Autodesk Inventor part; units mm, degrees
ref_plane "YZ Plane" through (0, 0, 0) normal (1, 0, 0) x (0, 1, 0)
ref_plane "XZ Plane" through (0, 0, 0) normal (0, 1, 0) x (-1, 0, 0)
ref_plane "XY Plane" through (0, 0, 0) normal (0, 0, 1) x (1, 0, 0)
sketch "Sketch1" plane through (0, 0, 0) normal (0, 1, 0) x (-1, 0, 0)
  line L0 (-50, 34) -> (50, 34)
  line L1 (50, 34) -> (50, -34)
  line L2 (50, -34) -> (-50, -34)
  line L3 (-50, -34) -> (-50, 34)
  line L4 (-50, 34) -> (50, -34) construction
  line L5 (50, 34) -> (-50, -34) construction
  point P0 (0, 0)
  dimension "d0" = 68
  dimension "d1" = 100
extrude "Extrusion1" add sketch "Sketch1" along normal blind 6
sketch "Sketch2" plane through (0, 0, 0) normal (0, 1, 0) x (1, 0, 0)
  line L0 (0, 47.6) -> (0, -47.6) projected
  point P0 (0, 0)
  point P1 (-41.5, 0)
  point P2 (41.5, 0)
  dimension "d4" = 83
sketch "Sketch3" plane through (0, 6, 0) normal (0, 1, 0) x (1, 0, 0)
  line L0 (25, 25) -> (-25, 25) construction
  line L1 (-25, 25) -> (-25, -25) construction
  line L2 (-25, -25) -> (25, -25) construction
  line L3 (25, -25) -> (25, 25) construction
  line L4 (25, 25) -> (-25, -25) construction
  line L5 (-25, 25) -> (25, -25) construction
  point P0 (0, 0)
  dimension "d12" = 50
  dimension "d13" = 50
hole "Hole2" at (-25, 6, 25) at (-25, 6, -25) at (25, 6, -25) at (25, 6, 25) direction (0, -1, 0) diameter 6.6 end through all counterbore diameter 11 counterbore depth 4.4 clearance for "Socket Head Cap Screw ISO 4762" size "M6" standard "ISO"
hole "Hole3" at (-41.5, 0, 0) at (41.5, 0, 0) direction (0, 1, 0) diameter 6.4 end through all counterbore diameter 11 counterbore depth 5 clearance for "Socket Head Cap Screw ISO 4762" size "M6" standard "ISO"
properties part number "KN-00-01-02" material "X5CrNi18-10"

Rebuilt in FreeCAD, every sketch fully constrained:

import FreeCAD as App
import Part
import Sketcher
from FreeCAD import Vector


def add_polygon(sketch, points):
    """Adds a closed chain of lines whose ends are joined by coincident constraints."""
    first, n = sketch.GeometryCount, len(points)
    for a, b in zip(points, points[1:] + points[:1]):
        sketch.addGeometry(Part.LineSegment(App.Vector(*a, 0), App.Vector(*b, 0)), False)
    for i in range(n):
        sketch.addConstraint(Sketcher.Constraint("Coincident", first + i, 2, first + (i + 1) % n, 1))

doc = App.newDocument("Part")
params = doc.addObject("Spreadsheet::Sheet", "Params")
for row, (alias, value) in enumerate([
    ("sketch1_width", "100 mm"),
    ("sketch1_height", "68 mm"),
    ("pad1_length", "6 mm"),
    ("sketch2_diameter", "6.6 mm"),
    ("hole_diameter", "6.6 mm"),
    ("hole_cbore_diameter", "11 mm"),
    ("hole_cbore_depth", "4.4 mm"),
    ("sketch3_diameter", "6.4 mm"),
    ("hole2_diameter", "6.4 mm"),
    ("hole2_cbore_diameter", "11 mm"),
    ("hole2_cbore_depth", "5 mm"),
], start=1):
    params.set(f"A{row}", alias)
    params.set(f"B{row}", "=" + value)
    params.setAlias(f"B{row}", alias)

body = doc.addObject("PartDesign::Body", "Body")

# Sketch on XZ plane
sketch1 = body.newObject("Sketcher::SketchObject", "Sketch")
sketch1.AttachmentSupport = (doc.getObject("XZ_Plane"), [""])
sketch1.MapMode = "FlatFace"
add_polygon(sketch1, [(-50, 34), (50, 34), (50, -34), (-50, -34)])  # lines 0-3
sketch1.addConstraint([
    Sketcher.Constraint("Horizontal", 0),
    Sketcher.Constraint("Vertical", 1),
    Sketcher.Constraint("Horizontal", 2),
    Sketcher.Constraint("Vertical", 3),
    Sketcher.Constraint("Symmetric", 0, 2, 2, 2, -1, 1),
    Sketcher.Constraint("DistanceX", 0, 1, 0, 2, 100.0),
    Sketcher.Constraint("DistanceY", 1, 2, 1, 1, 68.0),
])
sketch1.setExpression("Constraints[9]", "Params.sketch1_width")
sketch1.setExpression("Constraints[10]", "Params.sketch1_height")
pad1 = body.newObject("PartDesign::Pad", "Pad")
pad1.Profile = sketch1
pad1.setExpression("Length", "Params.pad1_length")
pad1.Reversed = True

# Sketch on XZ plane
sketch2 = body.newObject("Sketcher::SketchObject", "Sketch001")
sketch2.AttachmentSupport = (doc.getObject("XZ_Plane"), [""])
sketch2.MapMode = "FlatFace"
sketch2.AttachmentOffset = App.Placement(Vector(0, 0, -6), App.Rotation())
sketch2.addGeometry([
    Part.Circle(Vector(-25, 25, 0), Vector(0, 0, 1), 3.3),
    Part.Circle(Vector(-25, -25, 0), Vector(0, 0, 1), 3.3),
    Part.Circle(Vector(25, -25, 0), Vector(0, 0, 1), 3.3),
    Part.Circle(Vector(25, 25, 0), Vector(0, 0, 1), 3.3),
], False)
sketch2.addConstraint([
    Sketcher.Constraint("Equal", 0, 1),
    Sketcher.Constraint("Equal", 1, 2),
    Sketcher.Constraint("Equal", 2, 3),
    Sketcher.Constraint("Symmetric", 0, 3, 2, 3, -1, 1),
    Sketcher.Constraint("Symmetric", 1, 3, 3, 3, -1, 1),
    Sketcher.Constraint("Symmetric", 1, 3, 2, 3, -2),
    Sketcher.Constraint("Diameter", 0, 6.6),
    Sketcher.Constraint("DistanceX", 0, 3, -1, 1, 25.0),
    Sketcher.Constraint("DistanceY", -1, 1, 0, 3, 25.0),
])
sketch2.setExpression("Constraints[6]", "Params.sketch2_diameter")
doc.recompute()
hole = body.newObject("PartDesign::Hole", "Hole")
hole.Profile = sketch2
hole.ThreadType = "None"
hole.setExpression("Diameter", "Params.hole_diameter")
hole.DepthType = "ThroughAll"
hole.HoleCutType = "Counterbore"
hole.setExpression("HoleCutDiameter", "Params.hole_cbore_diameter")
hole.setExpression("HoleCutDepth", "Params.hole_cbore_depth")
hole.Reversed = True

# Sketch on XZ plane
sketch3 = body.newObject("Sketcher::SketchObject", "Sketch002")
sketch3.AttachmentSupport = (doc.getObject("XZ_Plane"), [""])
sketch3.MapMode = "FlatFace"
sketch3.addGeometry([
    Part.Circle(Vector(-41.5, 0, 0), Vector(0, 0, 1), 3.2),
    Part.Circle(Vector(41.5, 0, 0), Vector(0, 0, 1), 3.2),
], False)
sketch3.addConstraint([
    Sketcher.Constraint("Equal", 0, 1),
    Sketcher.Constraint("Symmetric", 0, 3, 1, 3, -1, 1),
    Sketcher.Constraint("PointOnObject", 0, 3, -1),
    Sketcher.Constraint("Diameter", 0, 6.4),
    Sketcher.Constraint("DistanceX", 0, 3, 1, 3, 83.0),
])
sketch3.setExpression("Constraints[3]", "Params.sketch3_diameter")
doc.recompute()
hole2 = body.newObject("PartDesign::Hole", "Hole001")
hole2.Profile = sketch3
hole2.ThreadType = "None"
hole2.setExpression("Diameter", "Params.hole2_diameter")
hole2.DepthType = "ThroughAll"
hole2.HoleCutType = "Counterbore"
hole2.setExpression("HoleCutDiameter", "Params.hole2_cbore_diameter")
hole2.setExpression("HoleCutDepth", "Params.hole2_cbore_depth")

doc.recompute()
